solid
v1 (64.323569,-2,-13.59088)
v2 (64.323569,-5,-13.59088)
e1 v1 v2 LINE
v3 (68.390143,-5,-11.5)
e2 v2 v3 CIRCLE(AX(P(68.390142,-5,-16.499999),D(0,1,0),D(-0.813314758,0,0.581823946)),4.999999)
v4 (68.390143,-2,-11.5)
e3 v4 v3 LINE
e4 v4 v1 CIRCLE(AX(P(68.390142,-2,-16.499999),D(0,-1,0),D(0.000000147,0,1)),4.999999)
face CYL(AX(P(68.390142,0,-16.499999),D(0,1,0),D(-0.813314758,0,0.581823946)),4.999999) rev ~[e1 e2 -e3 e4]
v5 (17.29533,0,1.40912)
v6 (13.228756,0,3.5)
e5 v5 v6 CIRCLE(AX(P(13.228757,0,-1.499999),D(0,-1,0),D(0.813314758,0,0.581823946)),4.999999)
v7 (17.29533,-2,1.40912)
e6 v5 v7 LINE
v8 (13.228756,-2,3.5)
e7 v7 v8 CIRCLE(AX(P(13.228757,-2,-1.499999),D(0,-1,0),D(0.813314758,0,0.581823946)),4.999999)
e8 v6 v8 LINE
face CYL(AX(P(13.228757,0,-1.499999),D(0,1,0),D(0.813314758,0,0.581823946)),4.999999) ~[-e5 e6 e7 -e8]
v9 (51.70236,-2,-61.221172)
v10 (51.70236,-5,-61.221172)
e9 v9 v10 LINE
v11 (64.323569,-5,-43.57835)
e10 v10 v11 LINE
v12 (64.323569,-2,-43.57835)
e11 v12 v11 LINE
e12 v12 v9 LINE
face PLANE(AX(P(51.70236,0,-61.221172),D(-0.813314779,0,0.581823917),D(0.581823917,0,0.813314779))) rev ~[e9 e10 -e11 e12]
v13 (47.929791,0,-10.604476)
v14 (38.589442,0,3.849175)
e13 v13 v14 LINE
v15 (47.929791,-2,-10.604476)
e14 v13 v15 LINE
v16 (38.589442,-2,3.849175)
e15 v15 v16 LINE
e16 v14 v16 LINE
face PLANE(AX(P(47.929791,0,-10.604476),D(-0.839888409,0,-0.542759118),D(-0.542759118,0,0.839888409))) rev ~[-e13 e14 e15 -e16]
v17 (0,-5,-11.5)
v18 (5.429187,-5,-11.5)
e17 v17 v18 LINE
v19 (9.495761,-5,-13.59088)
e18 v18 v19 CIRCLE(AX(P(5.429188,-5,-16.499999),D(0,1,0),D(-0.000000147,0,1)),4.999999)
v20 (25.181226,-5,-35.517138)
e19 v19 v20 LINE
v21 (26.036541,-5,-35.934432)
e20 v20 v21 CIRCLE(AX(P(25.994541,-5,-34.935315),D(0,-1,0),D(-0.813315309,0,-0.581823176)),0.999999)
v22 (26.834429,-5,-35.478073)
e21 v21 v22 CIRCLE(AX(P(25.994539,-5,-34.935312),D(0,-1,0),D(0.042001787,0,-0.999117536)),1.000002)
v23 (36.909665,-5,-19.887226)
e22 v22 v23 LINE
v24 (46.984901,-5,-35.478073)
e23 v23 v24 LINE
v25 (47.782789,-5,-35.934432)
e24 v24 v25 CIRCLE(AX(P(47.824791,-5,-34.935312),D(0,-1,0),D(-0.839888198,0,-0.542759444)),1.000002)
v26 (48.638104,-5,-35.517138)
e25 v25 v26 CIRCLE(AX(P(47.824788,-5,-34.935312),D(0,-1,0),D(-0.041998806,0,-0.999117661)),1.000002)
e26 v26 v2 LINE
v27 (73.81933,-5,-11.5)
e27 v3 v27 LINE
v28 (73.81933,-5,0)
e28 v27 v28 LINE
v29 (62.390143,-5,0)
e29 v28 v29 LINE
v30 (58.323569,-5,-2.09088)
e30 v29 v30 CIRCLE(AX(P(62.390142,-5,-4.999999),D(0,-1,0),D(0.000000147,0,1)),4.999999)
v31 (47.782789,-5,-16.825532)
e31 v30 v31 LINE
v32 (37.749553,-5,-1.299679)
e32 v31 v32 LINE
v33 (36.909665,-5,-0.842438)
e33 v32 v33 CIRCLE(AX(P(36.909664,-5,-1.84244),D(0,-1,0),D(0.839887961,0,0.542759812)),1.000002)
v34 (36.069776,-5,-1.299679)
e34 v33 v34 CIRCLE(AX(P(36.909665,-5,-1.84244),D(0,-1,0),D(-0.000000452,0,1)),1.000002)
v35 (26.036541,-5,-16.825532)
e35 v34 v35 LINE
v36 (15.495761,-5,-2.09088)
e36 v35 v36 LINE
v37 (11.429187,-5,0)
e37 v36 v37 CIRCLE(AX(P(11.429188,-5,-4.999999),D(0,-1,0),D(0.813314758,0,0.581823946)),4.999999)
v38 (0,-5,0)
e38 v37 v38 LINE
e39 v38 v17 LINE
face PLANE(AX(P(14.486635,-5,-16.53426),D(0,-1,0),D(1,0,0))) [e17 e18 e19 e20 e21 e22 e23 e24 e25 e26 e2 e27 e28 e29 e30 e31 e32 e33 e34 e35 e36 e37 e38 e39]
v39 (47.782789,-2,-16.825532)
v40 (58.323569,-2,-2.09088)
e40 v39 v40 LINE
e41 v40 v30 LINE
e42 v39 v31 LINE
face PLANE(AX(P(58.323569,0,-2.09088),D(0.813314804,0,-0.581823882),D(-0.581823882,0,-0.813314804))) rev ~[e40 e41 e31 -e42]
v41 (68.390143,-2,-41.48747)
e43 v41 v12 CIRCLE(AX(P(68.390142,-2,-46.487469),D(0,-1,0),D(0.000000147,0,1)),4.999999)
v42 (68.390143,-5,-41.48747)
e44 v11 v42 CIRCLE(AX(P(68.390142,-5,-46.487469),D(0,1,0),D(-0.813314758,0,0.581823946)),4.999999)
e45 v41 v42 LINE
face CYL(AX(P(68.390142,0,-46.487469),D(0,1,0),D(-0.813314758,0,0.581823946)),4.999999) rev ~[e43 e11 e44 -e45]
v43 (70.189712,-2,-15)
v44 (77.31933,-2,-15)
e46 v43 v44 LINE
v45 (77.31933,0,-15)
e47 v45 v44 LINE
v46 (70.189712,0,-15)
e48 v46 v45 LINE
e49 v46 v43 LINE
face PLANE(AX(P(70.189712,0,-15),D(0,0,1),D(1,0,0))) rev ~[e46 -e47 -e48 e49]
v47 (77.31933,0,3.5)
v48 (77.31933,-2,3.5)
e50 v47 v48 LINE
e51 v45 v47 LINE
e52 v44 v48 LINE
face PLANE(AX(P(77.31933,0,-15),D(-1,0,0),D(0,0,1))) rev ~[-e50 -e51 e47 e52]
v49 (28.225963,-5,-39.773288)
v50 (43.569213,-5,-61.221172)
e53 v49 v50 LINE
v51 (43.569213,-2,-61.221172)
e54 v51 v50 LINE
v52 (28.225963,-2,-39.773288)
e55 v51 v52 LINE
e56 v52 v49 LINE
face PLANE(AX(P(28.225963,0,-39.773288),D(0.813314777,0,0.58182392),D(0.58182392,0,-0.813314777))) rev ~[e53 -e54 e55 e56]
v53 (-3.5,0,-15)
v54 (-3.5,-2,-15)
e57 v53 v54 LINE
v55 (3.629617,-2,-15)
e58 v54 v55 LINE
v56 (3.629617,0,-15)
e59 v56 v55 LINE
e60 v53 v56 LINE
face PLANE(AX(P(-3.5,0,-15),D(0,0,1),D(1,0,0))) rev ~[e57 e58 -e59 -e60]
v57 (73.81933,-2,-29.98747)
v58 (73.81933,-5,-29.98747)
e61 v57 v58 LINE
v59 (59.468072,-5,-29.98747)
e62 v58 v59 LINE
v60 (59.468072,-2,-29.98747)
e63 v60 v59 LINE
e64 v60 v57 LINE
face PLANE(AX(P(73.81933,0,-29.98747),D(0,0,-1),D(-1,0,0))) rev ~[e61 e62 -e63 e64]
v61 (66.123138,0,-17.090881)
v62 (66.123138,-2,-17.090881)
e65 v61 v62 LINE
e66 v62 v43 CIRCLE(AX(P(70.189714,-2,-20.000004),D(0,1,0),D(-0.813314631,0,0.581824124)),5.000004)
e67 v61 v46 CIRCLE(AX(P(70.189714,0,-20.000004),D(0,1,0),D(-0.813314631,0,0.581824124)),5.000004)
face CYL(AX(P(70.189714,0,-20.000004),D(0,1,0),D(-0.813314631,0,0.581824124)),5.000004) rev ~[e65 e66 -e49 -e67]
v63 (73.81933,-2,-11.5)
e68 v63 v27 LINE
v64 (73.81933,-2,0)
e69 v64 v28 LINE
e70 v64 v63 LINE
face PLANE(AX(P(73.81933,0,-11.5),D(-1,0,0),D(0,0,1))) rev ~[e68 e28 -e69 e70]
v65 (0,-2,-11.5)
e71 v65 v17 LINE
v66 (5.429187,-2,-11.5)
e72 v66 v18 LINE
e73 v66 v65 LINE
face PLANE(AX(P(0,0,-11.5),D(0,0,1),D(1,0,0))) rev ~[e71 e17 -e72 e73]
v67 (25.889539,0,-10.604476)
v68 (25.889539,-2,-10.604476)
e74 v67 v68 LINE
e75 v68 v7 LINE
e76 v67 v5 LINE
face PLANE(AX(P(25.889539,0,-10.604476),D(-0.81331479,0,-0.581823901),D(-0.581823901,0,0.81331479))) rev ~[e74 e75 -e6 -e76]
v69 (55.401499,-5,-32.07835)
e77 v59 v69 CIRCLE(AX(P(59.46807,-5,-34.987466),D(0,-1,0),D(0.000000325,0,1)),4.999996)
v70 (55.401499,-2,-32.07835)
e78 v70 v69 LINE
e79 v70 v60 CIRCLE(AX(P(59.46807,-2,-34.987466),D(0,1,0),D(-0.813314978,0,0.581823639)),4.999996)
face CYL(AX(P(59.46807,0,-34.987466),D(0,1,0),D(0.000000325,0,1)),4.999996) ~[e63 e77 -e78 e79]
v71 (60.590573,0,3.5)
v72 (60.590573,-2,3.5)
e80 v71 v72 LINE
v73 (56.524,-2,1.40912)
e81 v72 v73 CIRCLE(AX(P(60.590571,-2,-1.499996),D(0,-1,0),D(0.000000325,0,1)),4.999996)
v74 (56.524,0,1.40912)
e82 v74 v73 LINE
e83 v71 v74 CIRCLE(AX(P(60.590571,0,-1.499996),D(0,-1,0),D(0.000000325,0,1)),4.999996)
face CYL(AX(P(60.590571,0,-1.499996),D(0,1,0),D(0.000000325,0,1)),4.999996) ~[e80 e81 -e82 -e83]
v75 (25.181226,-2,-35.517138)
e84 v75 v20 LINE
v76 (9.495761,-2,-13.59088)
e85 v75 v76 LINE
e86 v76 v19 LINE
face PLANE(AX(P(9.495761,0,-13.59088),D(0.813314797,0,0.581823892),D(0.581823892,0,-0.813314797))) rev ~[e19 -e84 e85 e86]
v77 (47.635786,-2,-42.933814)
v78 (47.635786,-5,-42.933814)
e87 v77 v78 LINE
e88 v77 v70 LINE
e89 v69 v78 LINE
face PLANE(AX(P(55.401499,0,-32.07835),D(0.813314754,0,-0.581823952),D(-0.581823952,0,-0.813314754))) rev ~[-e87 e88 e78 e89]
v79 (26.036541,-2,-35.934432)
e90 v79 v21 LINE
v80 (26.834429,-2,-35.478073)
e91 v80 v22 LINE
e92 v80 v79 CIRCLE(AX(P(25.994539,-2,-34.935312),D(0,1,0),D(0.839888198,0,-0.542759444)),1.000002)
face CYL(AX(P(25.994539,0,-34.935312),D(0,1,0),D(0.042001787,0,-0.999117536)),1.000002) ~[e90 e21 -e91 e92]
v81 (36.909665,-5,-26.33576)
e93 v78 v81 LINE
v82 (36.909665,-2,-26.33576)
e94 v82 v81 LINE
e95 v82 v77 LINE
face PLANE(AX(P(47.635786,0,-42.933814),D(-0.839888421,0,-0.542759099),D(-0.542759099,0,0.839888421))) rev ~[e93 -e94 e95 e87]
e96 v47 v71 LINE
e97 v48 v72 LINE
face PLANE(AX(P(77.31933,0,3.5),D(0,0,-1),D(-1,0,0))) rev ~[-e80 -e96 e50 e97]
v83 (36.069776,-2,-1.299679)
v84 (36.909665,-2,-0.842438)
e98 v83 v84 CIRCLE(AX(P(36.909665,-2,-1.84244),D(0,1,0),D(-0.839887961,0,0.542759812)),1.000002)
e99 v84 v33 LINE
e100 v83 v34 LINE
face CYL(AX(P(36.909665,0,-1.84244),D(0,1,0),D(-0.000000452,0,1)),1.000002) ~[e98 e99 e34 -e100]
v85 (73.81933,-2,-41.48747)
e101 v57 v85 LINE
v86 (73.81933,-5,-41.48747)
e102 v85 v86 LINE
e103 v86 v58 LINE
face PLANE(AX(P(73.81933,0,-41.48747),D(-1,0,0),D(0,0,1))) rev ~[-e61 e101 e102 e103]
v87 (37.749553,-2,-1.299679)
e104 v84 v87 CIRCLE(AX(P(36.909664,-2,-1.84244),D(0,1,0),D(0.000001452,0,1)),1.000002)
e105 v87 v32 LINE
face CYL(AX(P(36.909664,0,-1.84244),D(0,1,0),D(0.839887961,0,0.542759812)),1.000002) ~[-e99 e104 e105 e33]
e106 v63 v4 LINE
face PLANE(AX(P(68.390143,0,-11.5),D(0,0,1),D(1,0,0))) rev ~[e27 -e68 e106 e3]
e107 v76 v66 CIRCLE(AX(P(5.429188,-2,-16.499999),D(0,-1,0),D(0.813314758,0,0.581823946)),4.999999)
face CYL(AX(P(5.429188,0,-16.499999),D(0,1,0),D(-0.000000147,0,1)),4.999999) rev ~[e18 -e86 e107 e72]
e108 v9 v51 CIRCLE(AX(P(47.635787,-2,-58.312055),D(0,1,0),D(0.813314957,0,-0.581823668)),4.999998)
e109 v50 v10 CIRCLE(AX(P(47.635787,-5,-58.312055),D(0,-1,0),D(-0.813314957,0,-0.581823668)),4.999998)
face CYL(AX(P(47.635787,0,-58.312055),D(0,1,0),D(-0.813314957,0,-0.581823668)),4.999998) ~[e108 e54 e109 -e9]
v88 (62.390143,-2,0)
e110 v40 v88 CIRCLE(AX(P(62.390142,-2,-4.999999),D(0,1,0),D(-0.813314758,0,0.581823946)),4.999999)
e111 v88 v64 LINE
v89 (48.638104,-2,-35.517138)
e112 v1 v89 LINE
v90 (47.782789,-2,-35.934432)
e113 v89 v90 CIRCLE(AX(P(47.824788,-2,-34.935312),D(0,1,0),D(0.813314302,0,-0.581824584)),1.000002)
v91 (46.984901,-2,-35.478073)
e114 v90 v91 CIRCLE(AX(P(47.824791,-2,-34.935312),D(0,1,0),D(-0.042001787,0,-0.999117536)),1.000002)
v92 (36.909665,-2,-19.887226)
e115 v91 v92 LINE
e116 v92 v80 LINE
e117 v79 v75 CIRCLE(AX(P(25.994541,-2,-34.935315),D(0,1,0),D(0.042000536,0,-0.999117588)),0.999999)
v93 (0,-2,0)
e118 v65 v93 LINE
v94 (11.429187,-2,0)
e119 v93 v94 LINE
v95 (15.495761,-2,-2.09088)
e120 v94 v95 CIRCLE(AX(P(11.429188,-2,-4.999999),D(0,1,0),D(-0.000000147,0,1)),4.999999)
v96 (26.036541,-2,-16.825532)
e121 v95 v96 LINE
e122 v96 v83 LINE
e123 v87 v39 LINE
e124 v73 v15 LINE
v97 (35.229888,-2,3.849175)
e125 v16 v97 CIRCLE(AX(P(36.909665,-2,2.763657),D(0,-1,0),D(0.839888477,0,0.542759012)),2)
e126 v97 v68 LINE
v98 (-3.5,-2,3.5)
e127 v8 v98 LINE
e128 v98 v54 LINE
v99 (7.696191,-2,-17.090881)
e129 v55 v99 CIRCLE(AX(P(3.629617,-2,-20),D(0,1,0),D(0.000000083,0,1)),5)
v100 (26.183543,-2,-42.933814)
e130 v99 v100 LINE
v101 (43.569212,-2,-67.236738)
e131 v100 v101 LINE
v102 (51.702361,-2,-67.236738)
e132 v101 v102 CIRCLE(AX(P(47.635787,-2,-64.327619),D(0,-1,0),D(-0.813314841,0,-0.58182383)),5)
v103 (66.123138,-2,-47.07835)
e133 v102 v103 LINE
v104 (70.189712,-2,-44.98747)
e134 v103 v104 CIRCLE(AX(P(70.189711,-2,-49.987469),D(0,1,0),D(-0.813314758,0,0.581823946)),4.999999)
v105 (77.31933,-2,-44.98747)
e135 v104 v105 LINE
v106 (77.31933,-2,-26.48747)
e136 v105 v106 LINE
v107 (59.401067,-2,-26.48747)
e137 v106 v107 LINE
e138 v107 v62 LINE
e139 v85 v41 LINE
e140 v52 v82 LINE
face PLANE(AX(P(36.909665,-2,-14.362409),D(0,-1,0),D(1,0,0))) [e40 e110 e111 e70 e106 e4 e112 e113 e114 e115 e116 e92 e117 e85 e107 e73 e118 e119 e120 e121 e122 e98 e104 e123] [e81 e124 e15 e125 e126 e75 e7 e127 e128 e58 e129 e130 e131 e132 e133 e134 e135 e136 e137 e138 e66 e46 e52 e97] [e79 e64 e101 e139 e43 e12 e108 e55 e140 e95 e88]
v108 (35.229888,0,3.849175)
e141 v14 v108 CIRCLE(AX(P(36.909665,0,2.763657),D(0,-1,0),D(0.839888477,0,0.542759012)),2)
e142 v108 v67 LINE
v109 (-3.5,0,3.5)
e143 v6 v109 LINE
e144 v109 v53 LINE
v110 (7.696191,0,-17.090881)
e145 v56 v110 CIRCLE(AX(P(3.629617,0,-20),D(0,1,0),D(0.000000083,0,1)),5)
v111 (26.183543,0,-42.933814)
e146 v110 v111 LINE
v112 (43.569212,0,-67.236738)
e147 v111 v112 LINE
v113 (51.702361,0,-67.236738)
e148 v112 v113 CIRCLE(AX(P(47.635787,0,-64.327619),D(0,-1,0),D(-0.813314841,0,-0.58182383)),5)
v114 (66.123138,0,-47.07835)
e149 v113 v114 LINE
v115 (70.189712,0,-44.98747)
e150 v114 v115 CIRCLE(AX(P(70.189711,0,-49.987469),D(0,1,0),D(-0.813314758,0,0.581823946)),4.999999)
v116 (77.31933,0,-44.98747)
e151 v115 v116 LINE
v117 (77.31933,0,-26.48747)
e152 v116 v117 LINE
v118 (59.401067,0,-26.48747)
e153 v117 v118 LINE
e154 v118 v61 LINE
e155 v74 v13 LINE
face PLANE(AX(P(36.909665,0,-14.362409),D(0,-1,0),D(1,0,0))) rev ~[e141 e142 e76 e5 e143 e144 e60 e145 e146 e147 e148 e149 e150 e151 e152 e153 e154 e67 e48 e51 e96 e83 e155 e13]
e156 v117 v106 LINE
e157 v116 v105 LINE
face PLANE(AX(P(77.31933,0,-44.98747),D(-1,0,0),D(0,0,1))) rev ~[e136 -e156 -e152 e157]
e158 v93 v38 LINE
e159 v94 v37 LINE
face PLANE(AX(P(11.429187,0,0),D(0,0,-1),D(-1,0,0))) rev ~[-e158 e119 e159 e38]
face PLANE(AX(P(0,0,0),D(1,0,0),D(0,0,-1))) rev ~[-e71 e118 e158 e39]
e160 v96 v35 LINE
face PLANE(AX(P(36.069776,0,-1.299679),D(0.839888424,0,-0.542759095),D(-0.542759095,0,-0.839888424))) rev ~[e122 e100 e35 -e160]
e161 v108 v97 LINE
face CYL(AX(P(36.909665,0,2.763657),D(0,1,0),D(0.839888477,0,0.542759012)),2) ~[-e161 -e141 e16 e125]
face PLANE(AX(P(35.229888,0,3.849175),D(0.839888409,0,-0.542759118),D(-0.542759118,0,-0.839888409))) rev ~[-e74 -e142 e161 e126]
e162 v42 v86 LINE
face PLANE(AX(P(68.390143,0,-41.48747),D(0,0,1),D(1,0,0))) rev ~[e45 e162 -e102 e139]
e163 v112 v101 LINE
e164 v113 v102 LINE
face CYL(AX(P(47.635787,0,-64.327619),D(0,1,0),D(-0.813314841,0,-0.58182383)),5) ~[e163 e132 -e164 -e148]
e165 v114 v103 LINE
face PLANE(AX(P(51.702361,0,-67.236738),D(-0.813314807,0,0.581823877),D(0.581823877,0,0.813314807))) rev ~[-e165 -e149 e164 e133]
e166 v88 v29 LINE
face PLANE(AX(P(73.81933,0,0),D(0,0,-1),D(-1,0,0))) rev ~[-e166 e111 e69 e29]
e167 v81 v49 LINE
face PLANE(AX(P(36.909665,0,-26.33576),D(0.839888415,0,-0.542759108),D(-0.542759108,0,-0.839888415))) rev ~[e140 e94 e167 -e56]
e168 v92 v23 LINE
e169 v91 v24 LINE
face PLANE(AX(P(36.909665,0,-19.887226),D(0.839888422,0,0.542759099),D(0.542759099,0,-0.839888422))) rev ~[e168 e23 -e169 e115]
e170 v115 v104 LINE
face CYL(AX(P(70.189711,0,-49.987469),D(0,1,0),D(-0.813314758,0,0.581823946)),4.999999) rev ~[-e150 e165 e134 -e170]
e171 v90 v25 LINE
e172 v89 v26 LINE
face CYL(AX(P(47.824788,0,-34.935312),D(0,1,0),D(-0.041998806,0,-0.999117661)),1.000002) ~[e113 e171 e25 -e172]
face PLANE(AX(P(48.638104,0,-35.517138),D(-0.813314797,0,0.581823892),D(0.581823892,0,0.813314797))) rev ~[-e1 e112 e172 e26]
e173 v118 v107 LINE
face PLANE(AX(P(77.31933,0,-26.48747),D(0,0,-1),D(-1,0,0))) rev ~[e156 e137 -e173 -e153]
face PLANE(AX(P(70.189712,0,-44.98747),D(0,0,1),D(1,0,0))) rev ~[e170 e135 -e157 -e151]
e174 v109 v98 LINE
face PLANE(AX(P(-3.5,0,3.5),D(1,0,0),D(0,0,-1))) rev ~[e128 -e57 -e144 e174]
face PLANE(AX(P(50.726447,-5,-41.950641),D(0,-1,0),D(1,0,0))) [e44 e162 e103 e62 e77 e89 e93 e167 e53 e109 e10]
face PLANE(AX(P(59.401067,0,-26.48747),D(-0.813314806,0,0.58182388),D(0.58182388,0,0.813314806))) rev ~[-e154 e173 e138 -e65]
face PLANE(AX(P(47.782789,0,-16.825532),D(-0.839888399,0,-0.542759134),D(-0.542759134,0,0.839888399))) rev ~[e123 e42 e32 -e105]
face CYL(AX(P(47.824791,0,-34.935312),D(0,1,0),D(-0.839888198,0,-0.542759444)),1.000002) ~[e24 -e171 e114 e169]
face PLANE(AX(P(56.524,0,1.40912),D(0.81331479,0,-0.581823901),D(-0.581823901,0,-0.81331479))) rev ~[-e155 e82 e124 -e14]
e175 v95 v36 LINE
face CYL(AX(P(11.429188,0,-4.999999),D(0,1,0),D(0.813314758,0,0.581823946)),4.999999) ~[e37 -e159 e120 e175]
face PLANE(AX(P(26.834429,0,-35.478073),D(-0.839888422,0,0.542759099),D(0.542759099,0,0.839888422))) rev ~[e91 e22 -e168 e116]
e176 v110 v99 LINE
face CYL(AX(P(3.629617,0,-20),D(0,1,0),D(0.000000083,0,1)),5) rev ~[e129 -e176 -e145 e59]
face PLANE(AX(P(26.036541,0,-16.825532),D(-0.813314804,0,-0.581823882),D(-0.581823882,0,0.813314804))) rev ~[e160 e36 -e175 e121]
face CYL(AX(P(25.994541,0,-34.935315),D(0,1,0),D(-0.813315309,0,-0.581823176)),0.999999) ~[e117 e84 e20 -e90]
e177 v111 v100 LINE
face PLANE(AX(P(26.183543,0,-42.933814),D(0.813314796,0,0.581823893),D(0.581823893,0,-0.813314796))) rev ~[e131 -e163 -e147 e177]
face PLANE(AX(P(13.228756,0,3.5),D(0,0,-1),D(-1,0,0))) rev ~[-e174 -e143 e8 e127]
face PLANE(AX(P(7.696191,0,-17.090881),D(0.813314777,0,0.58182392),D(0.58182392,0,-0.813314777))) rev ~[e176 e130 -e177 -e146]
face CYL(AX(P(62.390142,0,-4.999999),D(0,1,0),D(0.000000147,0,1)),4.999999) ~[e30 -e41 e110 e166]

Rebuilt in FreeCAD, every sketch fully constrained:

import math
import FreeCAD as App
import Part
import Sketcher
from FreeCAD import Vector
Q = App.Units.Quantity

doc = App.newDocument("Part")
body = doc.addObject("PartDesign::Body", "Body")
body.AllowCompound = True

sketch1 = doc.addObject("Sketcher::SketchObject", "Sketch")
body.addObject(sketch1)
sketch1.AttachmentSupport = (doc.XZ_Plane, [""])
sketch1.MapMode = "FlatFace"
sketch1.addGeometry([
    Part.LineSegment(Vector(0, 0, 0), Vector(0, -11.5, 0)),
    Part.LineSegment(Vector(0, -11.5, 0), Vector(5.429187, -11.5, 0)),
    Part.ArcOfCircle(Part.Circle(Vector(5.429188, -16.499999, 0), Vector(0, 0, 1), 4.999999), math.radians(35.578932), math.radians(90.000008)),
    Part.LineSegment(Vector(9.495761, -13.59088, 0), Vector(25.181226, -35.517138, 0)),
    Part.ArcOfCircle(Part.Circle(Vector(25.994541, -34.935315, 0), Vector(0, 0, 1), 0.999999), math.radians(-144.421122), math.radians(-87.592838)),
    Part.ArcOfCircle(Part.Circle(Vector(25.994539, -34.935312, 0), Vector(0, 0, 1), 1.000002), math.radians(-87.592767), math.radians(-32.871684)),
    Part.LineSegment(Vector(26.834429, -35.478073, 0), Vector(36.909665, -19.887226, 0)),
    Part.LineSegment(Vector(36.909665, -19.887226, 0), Vector(46.984901, -35.478073, 0)),
    Part.ArcOfCircle(Part.Circle(Vector(47.824791, -34.935312, 0), Vector(0, 0, 1), 1.000002), math.radians(-147.128316), math.radians(-92.407233)),
    Part.ArcOfCircle(Part.Circle(Vector(47.824788, -34.935312, 0), Vector(0, 0, 1), 1.000002), math.radians(-92.407062), math.radians(-35.578977)),
    Part.LineSegment(Vector(48.638104, -35.517138, 0), Vector(64.323569, -13.59088, 0)),
    Part.ArcOfCircle(Part.Circle(Vector(68.390142, -16.499999, 0), Vector(0, 0, 1), 4.999999), math.radians(89.999992), math.radians(144.421068)),
    Part.LineSegment(Vector(68.390143, -11.5, 0), Vector(73.81933, -11.5, 0)),
    Part.LineSegment(Vector(73.81933, -11.5, 0), Vector(73.81933, 0, 0)),
    Part.LineSegment(Vector(73.81933, 0, 0), Vector(62.390143, 0, 0)),
    Part.ArcOfCircle(Part.Circle(Vector(62.390142, -4.999999, 0), Vector(0, 0, 1), 4.999999), math.radians(89.999992), math.radians(144.421068)),
    Part.LineSegment(Vector(58.323569, -2.09088, 0), Vector(47.782789, -16.825532, 0)),
    Part.LineSegment(Vector(47.782789, -16.825532, 0), Vector(37.749553, -1.299679, 0)),
    Part.ArcOfCircle(Part.Circle(Vector(36.909664, -1.84244, 0), Vector(0, 0, 1), 1.000002), math.radians(32.87171), math.radians(89.999917)),
    Part.ArcOfCircle(Part.Circle(Vector(36.909665, -1.84244, 0), Vector(0, 0, 1), 1.000002), math.radians(90.000026), math.radians(147.12829)),
    Part.LineSegment(Vector(36.069776, -1.299679, 0), Vector(26.036541, -16.825532, 0)),
    Part.LineSegment(Vector(26.036541, -16.825532, 0), Vector(15.495761, -2.09088, 0)),
    Part.ArcOfCircle(Part.Circle(Vector(11.429188, -4.999999, 0), Vector(0, 0, 1), 4.999999), math.radians(35.578932), math.radians(90.000008)),
    Part.LineSegment(Vector(11.429187, 0, 0), Vector(0, 0, 0)),
    Part.LineSegment(Vector(36.909665, -26.33576, 0), Vector(28.225963, -39.773288, 0)),
    Part.LineSegment(Vector(28.225963, -39.773288, 0), Vector(43.569213, -61.221172, 0)),
    Part.ArcOfCircle(Part.Circle(Vector(47.635787, -58.312055, 0), Vector(0, 0, 1), 4.999998), math.radians(-144.421088), math.radians(-35.578912)),
    Part.LineSegment(Vector(51.70236, -61.221172, 0), Vector(64.323569, -43.57835, 0)),
    Part.ArcOfCircle(Part.Circle(Vector(68.390142, -46.487469, 0), Vector(0, 0, 1), 4.999999), math.radians(89.999992), math.radians(144.421068)),
    Part.LineSegment(Vector(68.390143, -41.48747, 0), Vector(73.81933, -41.48747, 0)),
    Part.LineSegment(Vector(73.81933, -41.48747, 0), Vector(73.81933, -29.98747, 0)),
    Part.LineSegment(Vector(73.81933, -29.98747, 0), Vector(59.468072, -29.98747, 0)),
    Part.ArcOfCircle(Part.Circle(Vector(59.46807, -34.987466, 0), Vector(0, 0, 1), 4.999996), math.radians(89.999981), math.radians(144.42109)),
    Part.LineSegment(Vector(55.401499, -32.07835, 0), Vector(47.635786, -42.933814, 0)),
    Part.LineSegment(Vector(47.635786, -42.933814, 0), Vector(36.909665, -26.33576, 0)),
], False)
sketch1.addConstraint([
    Sketcher.Constraint("Coincident", 0, 2, 1, 1),
    Sketcher.Constraint("Tangent", 1, 2, 2, 2),
    Sketcher.Constraint("Tangent", 2, 1, 3, 1),
    Sketcher.Constraint("Tangent", 3, 2, 4, 1),
    Sketcher.Constraint("Tangent", 4, 2, 5, 1),
    Sketcher.Constraint("Tangent", 5, 2, 6, 1),
    Sketcher.Constraint("Coincident", 6, 2, 7, 1),
    Sketcher.Constraint("Tangent", 7, 2, 8, 1),
    Sketcher.Constraint("Coincident", 8, 2, 9, 1),
    Sketcher.Constraint("Tangent", 9, 2, 10, 1),
    Sketcher.Constraint("Tangent", 10, 2, 11, 2),
    Sketcher.Constraint("Tangent", 11, 1, 12, 1),
    Sketcher.Constraint("Coincident", 12, 2, 13, 1),
    Sketcher.Constraint("Coincident", 13, 2, 14, 1),
    Sketcher.Constraint("Tangent", 14, 2, 15, 1),
    Sketcher.Constraint("Tangent", 15, 2, 16, 1),
    Sketcher.Constraint("Coincident", 16, 2, 17, 1),
    Sketcher.Constraint("Tangent", 17, 2, 18, 1),
    Sketcher.Constraint("Tangent", 18, 2, 19, 1),
    Sketcher.Constraint("Tangent", 19, 2, 20, 1),
    Sketcher.Constraint("Coincident", 20, 2, 21, 1),
    Sketcher.Constraint("Tangent", 21, 2, 22, 1),
    Sketcher.Constraint("Tangent", 22, 2, 23, 1),
    Sketcher.Constraint("Coincident", 23, 2, 0, 1),
    Sketcher.Constraint("Coincident", 24, 2, 25, 1),
    Sketcher.Constraint("Tangent", 25, 2, 26, 1),
    Sketcher.Constraint("Tangent", 26, 2, 27, 1),
    Sketcher.Constraint("Tangent", 27, 2, 28, 2),
    Sketcher.Constraint("Tangent", 28, 1, 29, 1),
    Sketcher.Constraint("Coincident", 29, 2, 30, 1),
    Sketcher.Constraint("Coincident", 30, 2, 31, 1),
    Sketcher.Constraint("Tangent", 31, 2, 32, 1),
    Sketcher.Constraint("Tangent", 32, 2, 33, 1),
    Sketcher.Constraint("Coincident", 33, 2, 34, 1),
    Sketcher.Constraint("Coincident", 34, 2, 24, 1),
    Sketcher.Constraint("Vertical", 0),
    Sketcher.Constraint("Horizontal", 1),
    Sketcher.Constraint("Horizontal", 12),
    Sketcher.Constraint("Vertical", 13),
    Sketcher.Constraint("Horizontal", 14),
    Sketcher.Constraint("Horizontal", 23),
    Sketcher.Constraint("Horizontal", 29),
    Sketcher.Constraint("Vertical", 30),
    Sketcher.Constraint("Horizontal", 31),
    Sketcher.Constraint("Coincident", 23, 2, -1, 1),
    Sketcher.Constraint("Coincident", 9, 3, 8, 3),
    Sketcher.Constraint("Equal", 5, 8),
    Sketcher.Constraint("Equal", 2, 11),
    Sketcher.Constraint("Equal", 11, 15),
    Sketcher.Constraint("Equal", 9, 18),
    Sketcher.Constraint("Equal", 18, 19),
    Sketcher.Constraint("Equal", 15, 22),
    Sketcher.Constraint("Equal", 22, 26),
    Sketcher.Constraint("Equal", 26, 28),
    Sketcher.Constraint("PointOnObject", 13, 2, -1),
    Sketcher.Constraint("Parallel", 10, 16),
    Sketcher.Constraint("Parallel", 7, 17),
    Sketcher.Constraint("Parallel", 6, 20),
    Sketcher.Constraint("Parallel", 3, 21),
    Sketcher.Constraint("Parallel", 20, 24),
    Sketcher.Constraint("Parallel", 21, 25),
    Sketcher.Constraint("Parallel", 16, 27),
    Sketcher.Constraint("Parallel", 27, 33),
    Sketcher.Constraint("Parallel", 17, 34),
    Sketcher.Constraint("Horizontal", 5, 3, 8, 3),
    Sketcher.Constraint("Horizontal", 2, 3, 11, 3),
    Sketcher.Constraint("Horizontal", 5, 2, 7, 2),
    Sketcher.Constraint("Horizontal", 4, 2, 8, 2),
    Sketcher.Constraint("Horizontal", 3, 2, 9, 2),
    Sketcher.Constraint("Horizontal", 2, 1, 10, 2),
    Sketcher.Constraint("Horizontal", 16, 2, 20, 2),
    Sketcher.Constraint("Vertical", 11, 3, 28, 3),
    Sketcher.Constraint("Vertical", 19, 3, 6, 2),
    Sketcher.Constraint("Vertical", 8, 2, 16, 2),
    Sketcher.Constraint("Vertical", 6, 2, 18, 2),
    Sketcher.Constraint("Vertical", 13, 2, 29, 2),
    Sketcher.Constraint("Vertical", 26, 3, 33, 2),
    Sketcher.Constraint("Vertical", 18, 2, 34, 2),
    Sketcher.Constraint("Equal", 1, 12),
    Sketcher.Constraint("Equal", 13, 30),
    Sketcher.Constraint("Radius", 2, Q("4.999999 mm")),
    Sketcher.Constraint("Radius", 4, Q("0.999999 mm")),
    Sketcher.Constraint("DistanceY", 0, 2, 0, 1, Q("11.5 mm")),
    Sketcher.Constraint("DistanceX", 15, 3, 11, 3, Q("6 mm")),
    Sketcher.Constraint("Radius", 32, Q("4.999996 mm")),
    Sketcher.Constraint("DistanceX", 26, 3, 9, 3, Q("0.189001 mm")),
    Sketcher.Constraint("DistanceX", 4, 3, 4, 2, Q("0.042 mm")),
    Sketcher.Constraint("DistanceX", -1, 1, 7, 2, Q("46.984901 mm")),
    Sketcher.Constraint("DistanceX", -1, 1, 32, 2, Q("55.401499 mm")),
    Sketcher.Constraint("DistanceX", 2, 3, 9, 3, Q("42.3956 mm")),
    Sketcher.Constraint("DistanceX", 32, 3, 10, 2, Q("4.855499 mm")),
    Sketcher.Constraint("DistanceY", 15, 2, 17, 2, Q("0.791201 mm")),
    Sketcher.Constraint("DistanceY", 25, 2, 7, 2, Q("25.743099 mm")),
    Sketcher.Constraint("DistanceY", 33, 2, 8, 3, Q("7.998502 mm")),
])
pad1 = doc.addObject("PartDesign::Pad", "Pad")
body.addObject(pad1)
pad1.Profile = sketch1
pad1.Length = 5

sketch2 = doc.addObject("Sketcher::SketchObject", "Sketch001")
body.addObject(sketch2)
sketch2.AttachmentSupport = (doc.XZ_Plane, [""])
sketch2.MapMode = "FlatFace"
sketch2.addGeometry([
    Part.LineSegment(Vector(7.696191, -17.090881, 0), Vector(26.183543, -42.933814, 0)),
    Part.LineSegment(Vector(26.183543, -42.933814, 0), Vector(43.569212, -67.236738, 0)),
    Part.ArcOfCircle(Part.Circle(Vector(47.635787, -64.327619, 0), Vector(0, 0, 1), 5), math.radians(-144.421076), math.radians(-35.578924)),
    Part.LineSegment(Vector(51.702361, -67.236738, 0), Vector(66.123138, -47.07835, 0)),
    Part.ArcOfCircle(Part.Circle(Vector(70.189711, -49.987469, 0), Vector(0, 0, 1), 4.999999), math.radians(89.999992), math.radians(144.421068)),
    Part.LineSegment(Vector(70.189712, -44.98747, 0), Vector(77.31933, -44.98747, 0)),
    Part.LineSegment(Vector(77.31933, -44.98747, 0), Vector(77.31933, -26.48747, 0)),
    Part.LineSegment(Vector(77.31933, -26.48747, 0), Vector(59.401067, -26.48747, 0)),
    Part.LineSegment(Vector(59.401067, -26.48747, 0), Vector(66.123138, -17.090881, 0)),
    Part.ArcOfCircle(Part.Circle(Vector(70.189714, -20.000004, 0), Vector(0, 0, 1), 5.000004), math.radians(90.000026), math.radians(144.421056)),
    Part.LineSegment(Vector(70.189712, -15, 0), Vector(77.31933, -15, 0)),
    Part.LineSegment(Vector(77.31933, -15, 0), Vector(77.31933, 3.5, 0)),
    Part.LineSegment(Vector(77.31933, 3.5, 0), Vector(60.590573, 3.5, 0)),
    Part.ArcOfCircle(Part.Circle(Vector(60.590571, -1.499996, 0), Vector(0, 0, 1), 4.999996), math.radians(89.999981), math.radians(144.42109)),
    Part.LineSegment(Vector(56.524, 1.40912, 0), Vector(47.929791, -10.604476, 0)),
    Part.LineSegment(Vector(47.929791, -10.604476, 0), Vector(38.589442, 3.849175, 0)),
    Part.ArcOfCircle(Part.Circle(Vector(36.909665, 2.763657, 0), Vector(0, 0, 1), 2), math.radians(32.871655), math.radians(147.128345)),
    Part.LineSegment(Vector(35.229888, 3.849175, 0), Vector(25.889539, -10.604476, 0)),
    Part.LineSegment(Vector(25.889539, -10.604476, 0), Vector(17.29533, 1.40912, 0)),
    Part.ArcOfCircle(Part.Circle(Vector(13.228757, -1.499999, 0), Vector(0, 0, 1), 4.999999), math.radians(35.578932), math.radians(90.000008)),
    Part.LineSegment(Vector(13.228756, 3.5, 0), Vector(-3.5, 3.5, 0)),
    Part.LineSegment(Vector(-3.5, 3.5, 0), Vector(-3.5, -15, 0)),
    Part.LineSegment(Vector(-3.5, -15, 0), Vector(3.629617, -15, 0)),
    Part.ArcOfCircle(Part.Circle(Vector(3.629617, -20, 0), Vector(0, 0, 1), 5), math.radians(35.578923), math.radians(89.999995)),
    Part.LineSegment(Vector(28.225963, -39.773288, 0), Vector(36.909665, -26.33576, 0)),
    Part.LineSegment(Vector(36.909665, -26.33576, 0), Vector(47.635786, -42.933814, 0)),
    Part.LineSegment(Vector(47.635786, -42.933814, 0), Vector(55.401499, -32.07835, 0)),
    Part.ArcOfCircle(Part.Circle(Vector(59.46807, -34.987466, 0), Vector(0, 0, 1), 4.999996), math.radians(89.999981), math.radians(144.42109)),
    Part.LineSegment(Vector(59.468072, -29.98747, 0), Vector(73.81933, -29.98747, 0)),
    Part.LineSegment(Vector(73.81933, -29.98747, 0), Vector(73.81933, -41.48747, 0)),
    Part.LineSegment(Vector(73.81933, -41.48747, 0), Vector(68.390143, -41.48747, 0)),
    Part.ArcOfCircle(Part.Circle(Vector(68.390142, -46.487469, 0), Vector(0, 0, 1), 4.999999), math.radians(89.999992), math.radians(144.421068)),
    Part.LineSegment(Vector(64.323569, -43.57835, 0), Vector(51.70236, -61.221172, 0)),
    Part.ArcOfCircle(Part.Circle(Vector(47.635787, -58.312055, 0), Vector(0, 0, 1), 4.999998), math.radians(-144.421088), math.radians(-35.578912)),
    Part.LineSegment(Vector(43.569213, -61.221172, 0), Vector(28.225963, -39.773288, 0)),
    Part.LineSegment(Vector(5.429187, -11.5, 0), Vector(0, -11.5, 0)),
    Part.LineSegment(Vector(0, -11.5, 0), Vector(0, 0, 0)),
    Part.LineSegment(Vector(0, 0, 0), Vector(11.429187, 0, 0)),
    Part.ArcOfCircle(Part.Circle(Vector(11.429188, -4.999999, 0), Vector(0, 0, 1), 4.999999), math.radians(35.578932), math.radians(90.000008)),
    Part.LineSegment(Vector(15.495761, -2.09088, 0), Vector(26.036541, -16.825532, 0)),
    Part.LineSegment(Vector(26.036541, -16.825532, 0), Vector(36.069776, -1.299679, 0)),
    Part.ArcOfCircle(Part.Circle(Vector(36.909665, -1.84244, 0), Vector(0, 0, 1), 1.000002), math.radians(90.000026), math.radians(147.12829)),
    Part.ArcOfCircle(Part.Circle(Vector(36.909664, -1.84244, 0), Vector(0, 0, 1), 1.000002), math.radians(32.87171), math.radians(89.999917)),
    Part.LineSegment(Vector(37.749553, -1.299679, 0), Vector(47.782789, -16.825532, 0)),
    Part.LineSegment(Vector(47.782789, -16.825532, 0), Vector(58.323569, -2.09088, 0)),
    Part.ArcOfCircle(Part.Circle(Vector(62.390142, -4.999999, 0), Vector(0, 0, 1), 4.999999), math.radians(89.999992), math.radians(144.421068)),
    Part.LineSegment(Vector(62.390143, 0, 0), Vector(73.81933, 0, 0)),
    Part.LineSegment(Vector(73.81933, 0, 0), Vector(73.81933, -11.5, 0)),
    Part.LineSegment(Vector(73.81933, -11.5, 0), Vector(68.390143, -11.5, 0)),
    Part.ArcOfCircle(Part.Circle(Vector(68.390142, -16.499999, 0), Vector(0, 0, 1), 4.999999), math.radians(89.999992), math.radians(144.421068)),
    Part.LineSegment(Vector(64.323569, -13.59088, 0), Vector(48.638104, -35.517138, 0)),
    Part.ArcOfCircle(Part.Circle(Vector(47.824788, -34.935312, 0), Vector(0, 0, 1), 1.000002), math.radians(-92.407062), math.radians(-35.578977)),
    Part.ArcOfCircle(Part.Circle(Vector(47.824791, -34.935312, 0), Vector(0, 0, 1), 1.000002), math.radians(-147.128316), math.radians(-92.407233)),
    Part.LineSegment(Vector(46.984901, -35.478073, 0), Vector(36.909665, -19.887226, 0)),
    Part.LineSegment(Vector(36.909665, -19.887226, 0), Vector(26.834429, -35.478073, 0)),
    Part.ArcOfCircle(Part.Circle(Vector(25.994539, -34.935312, 0), Vector(0, 0, 1), 1.000002), math.radians(-87.592767), math.radians(-32.871684)),
    Part.ArcOfCircle(Part.Circle(Vector(25.994541, -34.935315, 0), Vector(0, 0, 1), 0.999999), math.radians(-144.421122), math.radians(-87.592838)),
    Part.LineSegment(Vector(25.181226, -35.517138, 0), Vector(9.495761, -13.59088, 0)),
    Part.ArcOfCircle(Part.Circle(Vector(5.429188, -16.499999, 0), Vector(0, 0, 1), 4.999999), math.radians(35.578932), math.radians(90.000008)),
], False)
sketch2.addConstraint([
    Sketcher.Constraint("Coincident", 0, 2, 1, 1),
    Sketcher.Constraint("Coincident", 1, 2, 2, 1),
    Sketcher.Constraint("Coincident", 2, 2, 3, 1),
    Sketcher.Constraint("Coincident", 3, 2, 4, 2),
    Sketcher.Constraint("Coincident", 4, 1, 5, 1),
    Sketcher.Constraint("Coincident", 5, 2, 6, 1),
    Sketcher.Constraint("Coincident", 6, 2, 7, 1),
    Sketcher.Constraint("Coincident", 7, 2, 8, 1),
    Sketcher.Constraint("Coincident", 8, 2, 9, 2),
    Sketcher.Constraint("Coincident", 9, 1, 10, 1),
    Sketcher.Constraint("Coincident", 10, 2, 11, 1),
    Sketcher.Constraint("Coincident", 11, 2, 12, 1),
    Sketcher.Constraint("Coincident", 12, 2, 13, 1),
    Sketcher.Constraint("Coincident", 13, 2, 14, 1),
    Sketcher.Constraint("Coincident", 14, 2, 15, 1),
    Sketcher.Constraint("Coincident", 15, 2, 16, 1),
    Sketcher.Constraint("Coincident", 16, 2, 17, 1),
    Sketcher.Constraint("Coincident", 17, 2, 18, 1),
    Sketcher.Constraint("Coincident", 18, 2, 19, 1),
    Sketcher.Constraint("Coincident", 19, 2, 20, 1),
    Sketcher.Constraint("Coincident", 20, 2, 21, 1),
    Sketcher.Constraint("Coincident", 21, 2, 22, 1),
    Sketcher.Constraint("Coincident", 22, 2, 23, 2),
    Sketcher.Constraint("Coincident", 23, 1, 0, 1),
    Sketcher.Constraint("Coincident", 24, 2, 25, 1),
    Sketcher.Constraint("Coincident", 25, 2, 26, 1),
    Sketcher.Constraint("Coincident", 26, 2, 27, 2),
    Sketcher.Constraint("Coincident", 27, 1, 28, 1),
    Sketcher.Constraint("Coincident", 28, 2, 29, 1),
    Sketcher.Constraint("Coincident", 29, 2, 30, 1),
    Sketcher.Constraint("Coincident", 30, 2, 31, 1),
    Sketcher.Constraint("Coincident", 31, 2, 32, 1),
    Sketcher.Constraint("Coincident", 32, 2, 33, 2),
    Sketcher.Constraint("Coincident", 33, 1, 34, 1),
    Sketcher.Constraint("Coincident", 34, 2, 24, 1),
    Sketcher.Constraint("Coincident", 35, 2, 36, 1),
    Sketcher.Constraint("Coincident", 36, 2, 37, 1),
    Sketcher.Constraint("Coincident", 37, 2, 38, 2),
    Sketcher.Constraint("Coincident", 38, 1, 39, 1),
    Sketcher.Constraint("Coincident", 39, 2, 40, 1),
    Sketcher.Constraint("Coincident", 40, 2, 41, 2),
    Sketcher.Constraint("Coincident", 41, 1, 42, 2),
    Sketcher.Constraint("Coincident", 42, 1, 43, 1),
    Sketcher.Constraint("Coincident", 43, 2, 44, 1),
    Sketcher.Constraint("Coincident", 44, 2, 45, 2),
    Sketcher.Constraint("Coincident", 45, 1, 46, 1),
    Sketcher.Constraint("Coincident", 46, 2, 47, 1),
    Sketcher.Constraint("Coincident", 47, 2, 48, 1),
    Sketcher.Constraint("Coincident", 48, 2, 49, 1),
    Sketcher.Constraint("Coincident", 49, 2, 50, 1),
    Sketcher.Constraint("Coincident", 50, 2, 51, 2),
    Sketcher.Constraint("Coincident", 51, 1, 52, 2),
    Sketcher.Constraint("Coincident", 52, 1, 53, 1),
    Sketcher.Constraint("Coincident", 53, 2, 54, 1),
    Sketcher.Constraint("Coincident", 54, 2, 55, 2),
    Sketcher.Constraint("Coincident", 55, 1, 56, 2),
    Sketcher.Constraint("Coincident", 56, 1, 57, 1),
    Sketcher.Constraint("Coincident", 57, 2, 58, 1),
    Sketcher.Constraint("Coincident", 58, 2, 35, 1),
    Sketcher.Constraint("Horizontal", 5),
    Sketcher.Constraint("Vertical", 6),
    Sketcher.Constraint("Horizontal", 7),
    Sketcher.Constraint("Horizontal", 10),
    Sketcher.Constraint("Vertical", 11),
    Sketcher.Constraint("Horizontal", 12),
    Sketcher.Constraint("Horizontal", 20),
    Sketcher.Constraint("Vertical", 21),
    Sketcher.Constraint("Horizontal", 22),
    Sketcher.Constraint("Horizontal", 28),
    Sketcher.Constraint("Vertical", 29),
    Sketcher.Constraint("Horizontal", 30),
    Sketcher.Constraint("Horizontal", 35),
    Sketcher.Constraint("Vertical", 36),
    Sketcher.Constraint("Horizontal", 37),
    Sketcher.Constraint("Horizontal", 46),
    Sketcher.Constraint("Vertical", 47),
    Sketcher.Constraint("Horizontal", 48),
    Sketcher.Constraint("Coincident", 36, 2, -1, 1),
    Sketcher.Constraint("Coincident", 42, 3, 41, 3),
    Sketcher.Constraint("Coincident", 52, 3, 51, 3),
    Sketcher.Constraint("Coincident", 56, 3, 55, 3),
    Sketcher.Constraint("PointOnObject", 45, 1, -1),
    Sketcher.Constraint("Radius", 2, Q("5 mm")),
    Sketcher.Constraint("Radius", 4, Q("4.999999 mm")),
    Sketcher.Constraint("Radius", 16, Q("2 mm")),
    Sketcher.Constraint("Radius", 19, Q("4.999999 mm")),
    Sketcher.Constraint("Radius", 23, Q("5 mm")),
    Sketcher.Constraint("Radius", 31, Q("4.999999 mm")),
    Sketcher.Constraint("Radius", 33, Q("4.999998 mm")),
    Sketcher.Constraint("Radius", 38, Q("4.999999 mm")),
    Sketcher.Constraint("Radius", 41, Q("1.000002 mm")),
    Sketcher.Constraint("Radius", 45, Q("4.999999 mm")),
    Sketcher.Constraint("Radius", 49, Q("4.999999 mm")),
    Sketcher.Constraint("Radius", 52, Q("1.000002 mm")),
    Sketcher.Constraint("Radius", 55, Q("1.000002 mm")),
    Sketcher.Constraint("Radius", 58, Q("4.999999 mm")),
    Sketcher.Constraint("DistanceY", 6, 1, 6, 2, Q("18.5 mm")),
    Sketcher.Constraint("DistanceY", 11, 1, 11, 2, Q("18.5 mm")),
    Sketcher.Constraint("DistanceY", 21, 2, 21, 1, Q("18.5 mm")),
    Sketcher.Constraint("DistanceY", 29, 2, 29, 1, Q("11.5 mm")),
    Sketcher.Constraint("DistanceY", 36, 1, 36, 2, Q("11.5 mm")),
    Sketcher.Constraint("DistanceY", 47, 2, 47, 1, Q("11.5 mm")),
    Sketcher.Constraint("DistanceY", 23, 3, -1, 1, Q("20 mm")),
    Sketcher.Constraint("DistanceY", 9, 1, -1, 1, Q("15 mm")),
    Sketcher.Constraint("DistanceX", 20, 2, -1, 1, Q("3.5 mm")),
    Sketcher.Constraint("DistanceX", -1, 1, 13, 2, Q("56.524 mm")),
    Sketcher.Constraint("Radius", 9, Q("5.000004 mm")),
    Sketcher.Constraint("Radius", 13, Q("4.999996 mm")),
    Sketcher.Constraint("Radius", 27, Q("4.999996 mm")),
    Sketcher.Constraint("DistanceX", -1, 1, 26, 2, Q("55.401499 mm")),
    Sketcher.Constraint("DistanceX", -1, 1, 52, 1, Q("46.984901 mm")),
    Sketcher.Constraint("Distance", 14, Q("14.771152 mm")),
    Sketcher.Constraint("Distance", 18, Q("14.771152 mm")),
    Sketcher.Constraint("Distance", 32, Q("21.692489 mm")),
    Sketcher.Constraint("Distance", 34, Q("26.370951 mm")),
    Sketcher.Constraint("Distance", 39, Q("18.116788 mm")),
    Sketcher.Constraint("Distance", 44, Q("18.116788 mm")),
    Sketcher.Constraint("Distance", 50, Q("26.959128 mm")),
    Sketcher.Constraint("Distance", 57, Q("26.959128 mm")),
    Sketcher.Constraint("DistanceX", 5, 1, 5, 2, Q("7.129618 mm")),
    Sketcher.Constraint("DistanceX", 7, 2, 7, 1, Q("17.918263 mm")),
    Sketcher.Constraint("DistanceX", 10, 1, 10, 2, Q("7.129618 mm")),
    Sketcher.Constraint("DistanceX", 12, 2, 12, 1, Q("16.728757 mm")),
    Sketcher.Constraint("DistanceX", 20, 2, 20, 1, Q("16.728756 mm")),
    Sketcher.Constraint("DistanceX", 22, 1, 22, 2, Q("7.129617 mm")),
    Sketcher.Constraint("DistanceX", 28, 1, 28, 2, Q("14.351258 mm")),
    Sketcher.Constraint("DistanceX", 30, 2, 30, 1, Q("5.429187 mm")),
    Sketcher.Constraint("DistanceX", 35, 2, 35, 1, Q("5.429187 mm")),
    Sketcher.Constraint("DistanceX", 37, 1, 37, 2, Q("11.429187 mm")),
    Sketcher.Constraint("DistanceX", 46, 1, 46, 2, Q("11.429187 mm")),
    Sketcher.Constraint("DistanceX", 48, 2, 48, 1, Q("5.429187 mm")),
    Sketcher.Constraint("DistanceY", 2, 3, -1, 1, Q("64.327619 mm")),
    Sketcher.Constraint("DistanceX", -1, 1, 4, 3, Q("70.189711 mm")),
    Sketcher.Constraint("DistanceY", 4, 3, -1, 1, Q("49.987469 mm")),
    Sketcher.Constraint("DistanceX", -1, 1, 13, 3, Q("60.590571 mm")),
    Sketcher.Constraint("DistanceX", -1, 1, 27, 3, Q("59.46807 mm")),
    Sketcher.Constraint("DistanceY", 31, 3, -1, 1, Q("46.487469 mm")),
    Sketcher.Constraint("DistanceY", 41, 3, -1, 1, Q("1.84244 mm")),
    Sketcher.Constraint("DistanceX", -1, 1, 52, 3, Q("47.824791 mm")),
    Sketcher.Constraint("DistanceX", -1, 1, 55, 3, Q("25.994539 mm")),
    Sketcher.Constraint("DistanceY", 1, 2, -1, 1, Q("67.236738 mm")),
    Sketcher.Constraint("DistanceX", -1, 1, 2, 2, Q("51.702361 mm")),
    Sketcher.Constraint("DistanceY", 2, 2, -1, 1, Q("67.236738 mm")),
    Sketcher.Constraint("DistanceY", 3, 2, -1, 1, Q("47.07835 mm")),
    Sketcher.Constraint("DistanceX", -1, 1, 4, 1, Q("70.189712 mm")),
    Sketcher.Constraint("DistanceY", 8, 2, -1, 1, Q("17.090881 mm")),
    Sketcher.Constraint("DistanceX", -1, 1, 9, 1, Q("70.189712 mm")),
    Sketcher.Constraint("DistanceX", -1, 1, 14, 2, Q("47.929791 mm")),
    Sketcher.Constraint("DistanceX", -1, 1, 15, 2, Q("38.589442 mm")),
    Sketcher.Constraint("DistanceX", -1, 1, 17, 2, Q("25.889539 mm")),
    Sketcher.Constraint("DistanceX", -1, 1, 18, 2, Q("17.29533 mm")),
    Sketcher.Constraint("DistanceY", -1, 1, 18, 2, Q("1.40912 mm")),
    Sketcher.Constraint("DistanceX", -1, 1, 23, 1, Q("7.696191 mm")),
    Sketcher.Constraint("DistanceY", 23, 1, -1, 1, Q("17.090881 mm")),
    Sketcher.Constraint("DistanceY", 24, 2, -1, 1, Q("26.33576 mm")),
    Sketcher.Constraint("DistanceX", -1, 1, 28, 2, Q("73.81933 mm")),
    Sketcher.Constraint("DistanceX", -1, 1, 31, 2, Q("64.323569 mm")),
    Sketcher.Constraint("DistanceY", 31, 2, -1, 1, Q("43.57835 mm")),
    Sketcher.Constraint("DistanceX", -1, 1, 32, 2, Q("51.70236 mm")),
    Sketcher.Constraint("DistanceX", -1, 1, 38, 1, Q("15.495761 mm")),
    Sketcher.Constraint("DistanceY", 38, 1, -1, 1, Q("2.09088 mm")),
    Sketcher.Constraint("DistanceX", -1, 1, 39, 2, Q("26.036541 mm")),
    Sketcher.Constraint("DistanceY", 40, 2, -1, 1, Q("1.299679 mm")),
    Sketcher.Constraint("DistanceY", 42, 1, -1, 1, Q("1.299679 mm")),
    Sketcher.Constraint("DistanceX", -1, 1, 43, 2, Q("47.782789 mm")),
    Sketcher.Constraint("DistanceY", 43, 2, -1, 1, Q("16.825532 mm")),
    Sketcher.Constraint("DistanceX", -1, 1, 44, 2, Q("58.323569 mm")),
    Sketcher.Constraint("DistanceX", -1, 1, 46, 2, Q("73.81933 mm")),
    Sketcher.Constraint("DistanceX", -1, 1, 49, 2, Q("64.323569 mm")),
    Sketcher.Constraint("DistanceY", 49, 2, -1, 1, Q("13.59088 mm")),
    Sketcher.Constraint("DistanceY", 50, 2, -1, 1, Q("35.517138 mm")),
    Sketcher.Constraint("DistanceX", -1, 1, 51, 1, Q("47.782789 mm")),
    Sketcher.Constraint("DistanceX", -1, 1, 54, 2, Q("26.834429 mm")),
    Sketcher.Constraint("DistanceX", -1, 1, 55, 1, Q("26.036541 mm")),
    Sketcher.Constraint("DistanceY", 55, 1, -1, 1, Q("35.934432 mm")),
    Sketcher.Constraint("DistanceY", 56, 1, -1, 1, Q("35.517138 mm")),
    Sketcher.Constraint("DistanceX", -1, 1, 57, 2, Q("9.495761 mm")),
    Sketcher.Constraint("Distance", 0, Q("31.774823 mm")),
    Sketcher.Constraint("Distance", 8, Q("11.553446 mm")),
    Sketcher.Constraint("Distance", 15, Q("17.209014 mm")),
    Sketcher.Constraint("Distance", 17, Q("17.209014 mm")),
    Sketcher.Constraint("Distance", 24, Q("15.999182 mm")),
    Sketcher.Constraint("Distance", 25, Q("19.762213 mm")),
    Sketcher.Constraint("Distance", 26, Q("13.347187 mm")),
    Sketcher.Constraint("Distance", 40, Q("18.485614 mm")),
    Sketcher.Constraint("Distance", 53, Q("18.562998 mm")),
    Sketcher.Constraint("Distance", 54, Q("18.562998 mm")),
    Sketcher.Constraint("DistanceX", -1, 1, 16, 3, Q("36.909665 mm")),
    Sketcher.Constraint("DistanceX", -1, 1, 33, 3, Q("47.635787 mm")),
    Sketcher.Constraint("DistanceX", -1, 1, 0, 2, Q("26.183543 mm")),
    Sketcher.Constraint("DistanceX", -1, 1, 24, 2, Q("36.909665 mm")),
    Sketcher.Constraint("DistanceX", -1, 1, 33, 1, Q("43.569213 mm")),
    Sketcher.Constraint("DistanceX", -1, 1, 41, 1, Q("36.909665 mm")),
])
pad2 = doc.addObject("PartDesign::Pad", "Pad001")
body.addObject(pad2)
pad2.Profile = sketch2
pad2.Length = 2

doc.recompute()
